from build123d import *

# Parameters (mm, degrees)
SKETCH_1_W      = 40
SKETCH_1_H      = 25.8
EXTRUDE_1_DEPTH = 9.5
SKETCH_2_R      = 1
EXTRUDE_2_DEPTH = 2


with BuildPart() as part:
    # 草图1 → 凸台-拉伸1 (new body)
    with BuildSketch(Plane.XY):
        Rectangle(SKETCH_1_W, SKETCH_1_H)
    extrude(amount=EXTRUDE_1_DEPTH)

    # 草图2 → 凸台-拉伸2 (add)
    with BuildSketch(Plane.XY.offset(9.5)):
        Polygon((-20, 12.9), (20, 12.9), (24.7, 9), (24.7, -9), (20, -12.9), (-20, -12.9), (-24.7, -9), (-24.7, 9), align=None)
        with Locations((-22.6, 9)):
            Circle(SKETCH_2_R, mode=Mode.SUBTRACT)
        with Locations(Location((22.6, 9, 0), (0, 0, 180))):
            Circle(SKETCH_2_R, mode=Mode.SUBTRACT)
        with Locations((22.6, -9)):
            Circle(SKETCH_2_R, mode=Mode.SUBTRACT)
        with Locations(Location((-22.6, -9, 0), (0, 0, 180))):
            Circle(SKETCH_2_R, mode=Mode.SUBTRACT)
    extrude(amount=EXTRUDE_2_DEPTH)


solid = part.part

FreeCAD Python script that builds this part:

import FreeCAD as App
import Part
import Sketcher
from FreeCAD import Vector


def add_polygon(sketch, points):
    """Adds a closed chain of lines whose ends are joined by coincident constraints."""
    first, n = sketch.GeometryCount, len(points)
    for a, b in zip(points, points[1:] + points[:1]):
        sketch.addGeometry(Part.LineSegment(App.Vector(*a, 0), App.Vector(*b, 0)), False)
    for i in range(n):
        sketch.addConstraint(Sketcher.Constraint("Coincident", first + i, 2, first + (i + 1) % n, 1))

doc = App.newDocument("Part")
body = doc.addObject("PartDesign::Body", "Body")

sketch1 = doc.addObject("Sketcher::SketchObject", "Sketch")
body.addObject(sketch1)
sketch1.AttachmentSupport = (doc.XY_Plane, [""])
sketch1.MapMode = "FlatFace"
add_polygon(sketch1, [(-20, 13), (-20, -13), (20, -13), (20, 13)])
sketch1.addConstraint([
    Sketcher.Constraint("Vertical", 0),
    Sketcher.Constraint("Horizontal", 1),
    Sketcher.Constraint("Vertical", 2),
    Sketcher.Constraint("Horizontal", 3),
    Sketcher.Constraint("Symmetric", 0, 2, 2, 2, -1, 1),
    Sketcher.Constraint("DistanceX", 1, 1, 1, 2, 40.0),
    Sketcher.Constraint("DistanceY", 0, 2, 0, 1, 25.8),
])
pad1 = doc.addObject("PartDesign::Pad", "Pad")
body.addObject(pad1)
pad1.Profile = sketch1
pad1.Length = 9.5

sketch2 = doc.addObject("Sketcher::SketchObject", "Sketch001")
body.addObject(sketch2)
sketch2.AttachmentSupport = (doc.XY_Plane, [""])
sketch2.MapMode = "FlatFace"
sketch2.AttachmentOffset = App.Placement(Vector(0, 0, 9.5), App.Rotation())
add_polygon(sketch2, [(20, 12.9), (-20, 12.9), (-24.7, 9), (-24.7, -9), (-20, -12.9), (20, -12.9), (24.7, -9), (24.7, 9)])
sketch2.addGeometry(Part.Circle(Vector(22.6, -9, 0), Vector(0, 0, 1), 1), False)
sketch2.addGeometry(Part.Circle(Vector(-22.6, -9, 0), Vector(0, 0, 1), 1), False)
sketch2.addGeometry(Part.Circle(Vector(22.6, 9, 0), Vector(0, 0, 1), 1), False)
sketch2.addGeometry(Part.Circle(Vector(-22.6, 9, 0), Vector(0, 0, 1), 1), False)
sketch2.addConstraint([
    Sketcher.Constraint("Horizontal", 0),
    Sketcher.Constraint("Vertical", 2),
    Sketcher.Constraint("Horizontal", 4),
    Sketcher.Constraint("Vertical", 6),
    Sketcher.Constraint("Equal", 8, 9),
    Sketcher.Constraint("Equal", 9, 10),
    Sketcher.Constraint("Equal", 10, 11),
    Sketcher.Constraint("Symmetric", 9, 3, 10, 3, -1, 1),
    Sketcher.Constraint("Symmetric", 8, 3, 11, 3, -1, 1),
    Sketcher.Constraint("Symmetric", 0, 2, 4, 2, -1, 1),
    Sketcher.Constraint("Symmetric", 1, 2, 5, 2, -1, 1),
    Sketcher.Constraint("Symmetric", 8, 3, 9, 3, -2),
    Sketcher.Constraint("Parallel", 3, 7),
    Sketcher.Constraint("Horizontal", 11, 3, 1, 2),
    Sketcher.Constraint("Horizontal", 9, 3, 2, 2),
    Sketcher.Constraint("Horizontal", 1, 2, 6, 2),
    Sketcher.Constraint("Vertical", 0, 2, 3, 2),
    Sketcher.Constraint("Diameter", 8, 2.0),
    Sketcher.Constraint("DistanceX", 0, 2, 0, 1, 40.0),
    Sketcher.Constraint("DistanceY", 2, 2, 2, 1, 18.0),
    Sketcher.Constraint("DistanceX", -1, 1, 8, 3, 22.6),
    Sketcher.Constraint("DistanceY", -1, 1, 0, 2, 12.9),
    Sketcher.Constraint("DistanceX", 1, 2, -1, 1, 24.7),
])
pad2 = doc.addObject("PartDesign::Pad", "Pad001")
body.addObject(pad2)
pad2.Profile = sketch2
pad2.Length = 2

doc.recompute()
